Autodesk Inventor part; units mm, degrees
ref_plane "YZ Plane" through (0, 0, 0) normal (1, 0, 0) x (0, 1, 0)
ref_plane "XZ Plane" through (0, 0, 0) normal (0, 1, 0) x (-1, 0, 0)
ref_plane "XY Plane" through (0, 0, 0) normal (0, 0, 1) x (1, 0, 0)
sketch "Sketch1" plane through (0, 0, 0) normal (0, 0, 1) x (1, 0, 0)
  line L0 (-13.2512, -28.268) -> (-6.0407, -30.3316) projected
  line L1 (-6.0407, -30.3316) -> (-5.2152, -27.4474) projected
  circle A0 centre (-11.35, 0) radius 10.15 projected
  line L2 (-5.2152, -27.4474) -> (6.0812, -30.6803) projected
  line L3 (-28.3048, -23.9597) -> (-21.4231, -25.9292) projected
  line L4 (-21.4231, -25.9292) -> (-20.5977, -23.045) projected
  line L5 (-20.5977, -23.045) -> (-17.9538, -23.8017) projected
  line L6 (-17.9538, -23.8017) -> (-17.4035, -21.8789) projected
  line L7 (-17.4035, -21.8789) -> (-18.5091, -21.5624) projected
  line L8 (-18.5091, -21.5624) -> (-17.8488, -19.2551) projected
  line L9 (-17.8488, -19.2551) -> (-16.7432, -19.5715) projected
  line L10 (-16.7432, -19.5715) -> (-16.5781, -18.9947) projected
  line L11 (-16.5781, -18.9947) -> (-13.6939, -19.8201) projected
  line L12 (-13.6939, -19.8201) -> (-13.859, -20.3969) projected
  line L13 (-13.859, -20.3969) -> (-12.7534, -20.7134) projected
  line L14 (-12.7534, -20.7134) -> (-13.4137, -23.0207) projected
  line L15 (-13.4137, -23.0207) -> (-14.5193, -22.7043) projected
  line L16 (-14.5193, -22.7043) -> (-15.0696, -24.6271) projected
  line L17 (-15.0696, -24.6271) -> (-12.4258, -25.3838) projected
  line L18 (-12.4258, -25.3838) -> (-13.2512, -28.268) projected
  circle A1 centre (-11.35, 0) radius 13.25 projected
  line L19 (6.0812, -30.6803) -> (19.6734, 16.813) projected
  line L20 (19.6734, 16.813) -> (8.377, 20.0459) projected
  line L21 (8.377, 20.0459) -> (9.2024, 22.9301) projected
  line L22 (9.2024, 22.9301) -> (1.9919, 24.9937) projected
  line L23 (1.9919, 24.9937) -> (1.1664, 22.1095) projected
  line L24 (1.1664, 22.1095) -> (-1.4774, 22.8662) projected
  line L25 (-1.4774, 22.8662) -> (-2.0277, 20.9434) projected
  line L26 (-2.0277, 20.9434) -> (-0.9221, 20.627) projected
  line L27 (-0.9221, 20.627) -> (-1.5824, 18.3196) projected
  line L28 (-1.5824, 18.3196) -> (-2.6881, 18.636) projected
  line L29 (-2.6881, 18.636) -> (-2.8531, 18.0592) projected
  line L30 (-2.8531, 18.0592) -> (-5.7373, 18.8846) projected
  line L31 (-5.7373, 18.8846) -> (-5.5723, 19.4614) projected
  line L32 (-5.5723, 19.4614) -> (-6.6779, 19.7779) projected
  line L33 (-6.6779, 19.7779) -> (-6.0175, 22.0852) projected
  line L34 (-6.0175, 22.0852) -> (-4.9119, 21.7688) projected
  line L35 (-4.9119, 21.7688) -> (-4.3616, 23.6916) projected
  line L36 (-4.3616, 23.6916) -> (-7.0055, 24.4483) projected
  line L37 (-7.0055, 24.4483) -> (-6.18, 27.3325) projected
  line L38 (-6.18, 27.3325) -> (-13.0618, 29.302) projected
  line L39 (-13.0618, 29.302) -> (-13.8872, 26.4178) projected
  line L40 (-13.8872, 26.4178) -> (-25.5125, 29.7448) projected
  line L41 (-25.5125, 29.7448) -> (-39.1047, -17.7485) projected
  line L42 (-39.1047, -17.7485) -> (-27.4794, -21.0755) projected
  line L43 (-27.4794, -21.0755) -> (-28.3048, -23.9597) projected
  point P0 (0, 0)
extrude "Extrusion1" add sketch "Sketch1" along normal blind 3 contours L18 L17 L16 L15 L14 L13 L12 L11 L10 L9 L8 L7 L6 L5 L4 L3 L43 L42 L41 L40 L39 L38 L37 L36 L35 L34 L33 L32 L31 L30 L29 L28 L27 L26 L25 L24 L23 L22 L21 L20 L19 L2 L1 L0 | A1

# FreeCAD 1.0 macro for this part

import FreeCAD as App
import Part
import Sketcher

V = App.Vector
Q = App.Units.Quantity


def add_polygon(sketch, points):
    """Adds a closed chain of lines whose ends are joined by coincident constraints."""
    first, n = sketch.GeometryCount, len(points)
    for a, b in zip(points, points[1:] + points[:1]):
        sketch.addGeometry(Part.LineSegment(App.Vector(*a, 0), App.Vector(*b, 0)), False)
    for i in range(n):
        sketch.addConstraint(Sketcher.Constraint("Coincident", first + i, 2, first + (i + 1) % n, 1))

doc = App.newDocument("Part")
body = doc.addObject("PartDesign::Body", "Body")

# Sketch on XY plane
sketch1 = doc.addObject("Sketcher::SketchObject", "Sketch")
body.addObject(sketch1)
sketch1.AttachmentSupport = (doc.XY_Plane, [""])
sketch1.MapMode = "FlatFace"
add_polygon(sketch1, [(-12.4, -25.4), (-13.3, -28.3), (-6, -30.3), (-5.2, -27.4), (6.1, -30.7), (19.7, 16.8), (8.4, 20), (9.2, 22.9), (2, 25), (1.2, 22.1), (-1.5, 22.9), (-2, 20.9), (-0.9, 20.6), (-1.6, 18.3), (-2.7, 18.6), (-2.9, 18.1), (-5.7, 18.9), (-5.6, 19.5), (-6.7, 19.8), (-6, 22.1), (-4.9, 21.8), (-4.4, 23.7), (-7, 24.4), (-6.2, 27.3), (-13.1, 29.3), (-13.9, 26.4), (-25.5, 29.7), (-39.1, -17.7), (-27.5, -21.1), (-28.3, -24), (-21.4, -25.9), (-20.6, -23), (-18, -23.8), (-17.4, -21.9), (-18.5, -21.6), (-17.8, -19.3), (-16.7, -19.6), (-16.6, -19), (-13.7, -19.8), (-13.9, -20.4), (-12.8, -20.7), (-13.4, -23), (-14.5, -22.7), (-15.1, -24.6)])  # lines 0-43
sketch1.addGeometry(Part.Circle(V(-11.3, 0, 0), V(0, 0, 1), 10.2), False)  # 44
sketch1.addConstraint([
    Sketcher.Constraint("PointOnObject", 44, 3, -1),
    Sketcher.Constraint("Perpendicular", 0, 1),
    Sketcher.Constraint("Perpendicular", 1, 2),
    Sketcher.Constraint("Perpendicular", 2, 3),
    Sketcher.Constraint("Perpendicular", 3, 4),
    Sketcher.Constraint("Perpendicular", 4, 5),
    Sketcher.Constraint("Perpendicular", 5, 6),
    Sketcher.Constraint("Perpendicular", 6, 7),
    Sketcher.Constraint("Perpendicular", 7, 8),
    Sketcher.Constraint("Perpendicular", 8, 9),
    Sketcher.Constraint("Perpendicular", 9, 10),
    Sketcher.Constraint("Perpendicular", 10, 11),
    Sketcher.Constraint("Perpendicular", 11, 12),
    Sketcher.Constraint("Perpendicular", 12, 13),
    Sketcher.Constraint("Perpendicular", 13, 14),
    Sketcher.Constraint("Perpendicular", 14, 15),
    Sketcher.Constraint("Perpendicular", 15, 16),
    Sketcher.Constraint("Perpendicular", 16, 17),
    Sketcher.Constraint("Perpendicular", 17, 18),
    Sketcher.Constraint("Perpendicular", 18, 19),
    Sketcher.Constraint("Perpendicular", 19, 20),
    Sketcher.Constraint("Perpendicular", 20, 21),
    Sketcher.Constraint("Perpendicular", 21, 22),
    Sketcher.Constraint("Perpendicular", 22, 23),
    Sketcher.Constraint("Perpendicular", 23, 24),
    Sketcher.Constraint("Perpendicular", 24, 25),
    Sketcher.Constraint("Perpendicular", 25, 26),
    Sketcher.Constraint("Perpendicular", 26, 27),
    Sketcher.Constraint("Perpendicular", 27, 28),
    Sketcher.Constraint("Perpendicular", 28, 29),
    Sketcher.Constraint("Perpendicular", 29, 30),
    Sketcher.Constraint("Perpendicular", 30, 31),
    Sketcher.Constraint("Perpendicular", 31, 32),
    Sketcher.Constraint("Perpendicular", 32, 33),
    Sketcher.Constraint("Perpendicular", 33, 34),
    Sketcher.Constraint("Perpendicular", 34, 35),
    Sketcher.Constraint("Perpendicular", 35, 36),
    Sketcher.Constraint("Perpendicular", 36, 37),
    Sketcher.Constraint("Perpendicular", 37, 38),
    Sketcher.Constraint("Perpendicular", 38, 39),
    Sketcher.Constraint("Perpendicular", 39, 40),
    Sketcher.Constraint("Perpendicular", 40, 41),
    Sketcher.Constraint("Perpendicular", 41, 42),
    Sketcher.Constraint("Perpendicular", 42, 43),
    Sketcher.Constraint("Equal", 0, 2),
    Sketcher.Constraint("Equal", 3, 5),
    Sketcher.Constraint("Equal", 2, 6),
    Sketcher.Constraint("Equal", 1, 7),
    Sketcher.Constraint("Equal", 6, 8),
    Sketcher.Constraint("Equal", 11, 13),
    Sketcher.Constraint("Equal", 8, 15),
    Sketcher.Constraint("Equal", 14, 16),
    Sketcher.Constraint("Equal", 13, 17),
    Sketcher.Constraint("Equal", 12, 18),
    Sketcher.Constraint("Equal", 17, 19),
    Sketcher.Constraint("Equal", 10, 20),
    Sketcher.Constraint("Equal", 9, 21),
    Sketcher.Constraint("Equal", 15, 22),
    Sketcher.Constraint("Equal", 22, 24),
    Sketcher.Constraint("Equal", 4, 26),
    Sketcher.Constraint("Equal", 25, 27),
    Sketcher.Constraint("Equal", 24, 28),
    Sketcher.Constraint("Equal", 23, 29),
    Sketcher.Constraint("Equal", 28, 30),
    Sketcher.Constraint("Equal", 21, 31),
    Sketcher.Constraint("Equal", 20, 32),
    Sketcher.Constraint("Equal", 19, 33),
    Sketcher.Constraint("Equal", 18, 34),
    Sketcher.Constraint("Equal", 33, 35),
    Sketcher.Constraint("Equal", 16, 36),
    Sketcher.Constraint("Equal", 30, 37),
    Sketcher.Constraint("Equal", 36, 38),
    Sketcher.Constraint("Equal", 35, 39),
    Sketcher.Constraint("Equal", 34, 40),
    Sketcher.Constraint("Equal", 39, 41),
    Sketcher.Constraint("Diameter", 44, 20.3),
    Sketcher.Constraint("Distance", 0, 3.0),
    Sketcher.Constraint("Distance", 10, 2.0),
    Sketcher.Constraint("Distance", 1, 7.5),
    Sketcher.Constraint("Distance", 4, 49.4),
    Sketcher.Constraint("Distance", 12, 2.4),
    Sketcher.Constraint("Distance", 14, 0.6),
    Sketcher.Constraint("Angle", 0, Q("-105.97 deg")),
    Sketcher.Constraint("DistanceX", 26, 2, 28, 2, 10.8),
    Sketcher.Constraint("Distance", 3, 11.75),
    Sketcher.Constraint("Distance", 9, 2.75),
    Sketcher.Constraint("Distance", 11, 1.15),
    Sketcher.Constraint("DistanceX", 44, 3, -1, 1, 11.35),
    Sketcher.Constraint("DistanceY", -1, 1, 6, 2, 22.93),
    Sketcher.Constraint("DistanceX", 22, 2, -1, 1, 6.18),
    Sketcher.Constraint("DistanceX", 23, 2, 19, 2, 8.15),
])
pad1 = doc.addObject("PartDesign::Pad", "Pad")
body.addObject(pad1)
pad1.Profile = sketch1
pad1.Length = 3

doc.recompute()
